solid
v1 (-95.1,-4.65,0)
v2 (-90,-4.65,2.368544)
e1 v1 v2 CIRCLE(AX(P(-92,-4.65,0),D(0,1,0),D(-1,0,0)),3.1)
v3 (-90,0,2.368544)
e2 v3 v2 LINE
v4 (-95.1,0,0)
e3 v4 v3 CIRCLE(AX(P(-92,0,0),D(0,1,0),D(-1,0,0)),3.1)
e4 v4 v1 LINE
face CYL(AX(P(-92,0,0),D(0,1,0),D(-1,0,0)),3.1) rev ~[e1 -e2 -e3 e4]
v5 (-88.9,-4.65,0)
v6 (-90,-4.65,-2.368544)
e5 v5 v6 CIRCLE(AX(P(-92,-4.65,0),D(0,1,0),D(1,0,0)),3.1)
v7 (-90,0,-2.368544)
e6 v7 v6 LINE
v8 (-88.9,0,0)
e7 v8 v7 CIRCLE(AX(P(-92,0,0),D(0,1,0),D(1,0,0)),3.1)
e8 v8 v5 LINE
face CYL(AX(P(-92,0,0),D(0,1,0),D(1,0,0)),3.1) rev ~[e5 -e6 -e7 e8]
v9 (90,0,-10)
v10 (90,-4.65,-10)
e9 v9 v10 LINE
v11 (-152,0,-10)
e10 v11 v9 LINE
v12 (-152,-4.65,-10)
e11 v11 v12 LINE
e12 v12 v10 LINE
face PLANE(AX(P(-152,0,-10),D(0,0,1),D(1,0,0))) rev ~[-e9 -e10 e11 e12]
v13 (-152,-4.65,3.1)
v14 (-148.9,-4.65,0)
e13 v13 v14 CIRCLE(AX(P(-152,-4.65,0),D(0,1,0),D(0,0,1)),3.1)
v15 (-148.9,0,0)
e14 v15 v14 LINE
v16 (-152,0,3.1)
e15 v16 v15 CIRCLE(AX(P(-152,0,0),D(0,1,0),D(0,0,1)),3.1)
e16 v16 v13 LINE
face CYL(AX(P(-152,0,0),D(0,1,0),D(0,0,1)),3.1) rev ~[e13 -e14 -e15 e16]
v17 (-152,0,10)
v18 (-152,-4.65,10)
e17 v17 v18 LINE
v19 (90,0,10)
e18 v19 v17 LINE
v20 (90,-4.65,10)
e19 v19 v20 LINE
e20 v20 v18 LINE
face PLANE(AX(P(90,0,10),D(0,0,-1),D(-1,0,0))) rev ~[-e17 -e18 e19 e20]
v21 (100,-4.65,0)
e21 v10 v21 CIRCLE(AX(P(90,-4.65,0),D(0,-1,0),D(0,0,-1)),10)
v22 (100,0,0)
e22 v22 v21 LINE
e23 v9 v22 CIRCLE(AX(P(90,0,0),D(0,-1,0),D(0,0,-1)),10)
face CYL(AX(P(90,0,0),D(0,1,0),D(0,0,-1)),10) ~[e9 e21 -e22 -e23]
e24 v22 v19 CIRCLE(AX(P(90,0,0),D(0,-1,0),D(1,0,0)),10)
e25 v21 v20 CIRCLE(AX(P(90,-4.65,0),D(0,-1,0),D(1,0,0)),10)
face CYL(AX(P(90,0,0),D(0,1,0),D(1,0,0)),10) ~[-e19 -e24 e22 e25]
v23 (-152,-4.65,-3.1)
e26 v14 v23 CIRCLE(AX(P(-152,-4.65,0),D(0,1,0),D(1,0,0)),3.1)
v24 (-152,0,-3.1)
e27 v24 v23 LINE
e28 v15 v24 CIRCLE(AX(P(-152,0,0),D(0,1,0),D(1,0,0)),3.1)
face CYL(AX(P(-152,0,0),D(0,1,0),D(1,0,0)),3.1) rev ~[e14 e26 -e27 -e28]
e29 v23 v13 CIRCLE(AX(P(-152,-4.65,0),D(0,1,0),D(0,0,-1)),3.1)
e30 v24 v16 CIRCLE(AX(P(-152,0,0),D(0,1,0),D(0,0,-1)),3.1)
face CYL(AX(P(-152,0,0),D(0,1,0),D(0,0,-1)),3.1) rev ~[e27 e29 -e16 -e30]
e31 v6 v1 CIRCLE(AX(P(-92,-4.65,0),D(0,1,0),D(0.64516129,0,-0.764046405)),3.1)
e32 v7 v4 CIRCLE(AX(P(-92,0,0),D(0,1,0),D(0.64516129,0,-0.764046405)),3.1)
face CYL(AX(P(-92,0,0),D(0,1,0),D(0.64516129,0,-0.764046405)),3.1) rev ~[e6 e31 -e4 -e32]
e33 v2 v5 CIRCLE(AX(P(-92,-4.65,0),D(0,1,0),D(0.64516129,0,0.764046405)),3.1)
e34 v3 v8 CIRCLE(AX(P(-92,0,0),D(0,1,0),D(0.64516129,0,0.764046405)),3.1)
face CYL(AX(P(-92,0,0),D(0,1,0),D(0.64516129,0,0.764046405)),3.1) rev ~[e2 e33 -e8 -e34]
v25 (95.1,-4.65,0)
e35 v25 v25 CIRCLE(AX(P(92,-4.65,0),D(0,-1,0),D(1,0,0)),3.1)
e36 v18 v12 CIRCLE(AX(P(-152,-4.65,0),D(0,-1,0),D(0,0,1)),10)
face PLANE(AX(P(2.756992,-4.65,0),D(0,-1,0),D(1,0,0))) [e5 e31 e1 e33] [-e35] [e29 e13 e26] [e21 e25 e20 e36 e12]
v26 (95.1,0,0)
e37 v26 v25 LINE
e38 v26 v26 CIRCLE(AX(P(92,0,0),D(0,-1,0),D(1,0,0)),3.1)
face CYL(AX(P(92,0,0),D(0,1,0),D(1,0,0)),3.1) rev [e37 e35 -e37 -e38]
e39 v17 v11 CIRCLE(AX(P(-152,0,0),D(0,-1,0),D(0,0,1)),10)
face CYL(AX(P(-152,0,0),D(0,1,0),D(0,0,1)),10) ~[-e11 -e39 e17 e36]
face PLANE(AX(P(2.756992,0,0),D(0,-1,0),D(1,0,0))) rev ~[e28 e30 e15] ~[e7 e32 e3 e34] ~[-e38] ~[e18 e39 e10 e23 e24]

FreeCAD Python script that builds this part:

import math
import FreeCAD as App
import Part
import Sketcher
Q = App.Units.Quantity

doc = App.newDocument("Part")
body = doc.addObject("PartDesign::Body", "Body")

# Sketch on XZ plane
sketch1 = body.newObject("Sketcher::SketchObject", "Sketch")
sketch1.AttachmentSupport = (doc.getObject("XZ_Plane"), [""])
sketch1.MapMode = "FlatFace"
sketch1.addGeometry([
    Part.ArcOfCircle(Part.Circle(App.Vector(90, 0, 0), App.Vector(0, 0, 1), 10), math.radians(0), math.radians(90)),  # 0
    Part.LineSegment(App.Vector(90, 10, 0), App.Vector(-152, 10, 0)),  # 1
    Part.ArcOfCircle(Part.Circle(App.Vector(-152, 0, 0), App.Vector(0, 0, 1), 10), math.radians(90), math.radians(270)),  # 2
    Part.LineSegment(App.Vector(-152, -10, 0), App.Vector(90, -10, 0)),  # 3
    Part.ArcOfCircle(Part.Circle(App.Vector(90, 0, 0), App.Vector(0, 0, 1), 10), math.radians(-90), math.radians(0)),  # 4
    Part.ArcOfCircle(Part.Circle(App.Vector(-152, 0, 0), App.Vector(0, 0, 1), 3.1), math.radians(0), math.radians(90)),  # 5
    Part.ArcOfCircle(Part.Circle(App.Vector(-152, 0, 0), App.Vector(0, 0, 1), 3.1), math.radians(-90), math.radians(0)),  # 6
    Part.ArcOfCircle(Part.Circle(App.Vector(-152, 0, 0), App.Vector(0, 0, 1), 3.1), math.radians(90), math.radians(270)),  # 7
    Part.ArcOfCircle(Part.Circle(App.Vector(-92, 0, 0), App.Vector(0, 0, 1), 3.1), math.radians(50), math.radians(180)),  # 8
    Part.ArcOfCircle(Part.Circle(App.Vector(-92, 0, 0), App.Vector(0, 0, 1), 3.1), math.radians(0), math.radians(50)),  # 9
    Part.ArcOfCircle(Part.Circle(App.Vector(-92, 0, 0), App.Vector(0, 0, 1), 3.1), math.radians(-50), math.radians(0)),  # 10
    Part.ArcOfCircle(Part.Circle(App.Vector(-92, 0, 0), App.Vector(0, 0, 1), 3.1), math.radians(180), math.radians(310)),  # 11
    Part.Circle(App.Vector(92, 0, 0), App.Vector(0, 0, 1), 3.1),  # 12
], False)
sketch1.addConstraint([
    Sketcher.Constraint("Tangent", 0, 2, 1, 1),
    Sketcher.Constraint("Tangent", 1, 2, 2, 1),
    Sketcher.Constraint("Tangent", 2, 2, 3, 1),
    Sketcher.Constraint("Tangent", 3, 2, 4, 1),
    Sketcher.Constraint("Tangent", 4, 2, 0, 1),
    Sketcher.Constraint("Tangent", 5, 1, 6, 2),
    Sketcher.Constraint("Tangent", 6, 1, 7, 2),
    Sketcher.Constraint("Tangent", 7, 1, 5, 2),
    Sketcher.Constraint("Tangent", 8, 1, 9, 2),
    Sketcher.Constraint("Tangent", 9, 1, 10, 2),
    Sketcher.Constraint("Tangent", 10, 1, 11, 2),
    Sketcher.Constraint("Tangent", 11, 1, 8, 2),
    Sketcher.Constraint("Horizontal", 1),
    Sketcher.Constraint("Horizontal", 3),
    Sketcher.Constraint("Coincident", 5, 3, 2, 3),
    Sketcher.Constraint("Equal", 0, 2),
    Sketcher.Constraint("Equal", 7, 8),
    Sketcher.Constraint("Equal", 8, 9),
    Sketcher.Constraint("Equal", 11, 12),
    Sketcher.Constraint("Symmetric", 8, 3, 12, 3, -1, 1),
    Sketcher.Constraint("Symmetric", 6, 1, 7, 1, -1),
    Sketcher.Constraint("Symmetric", 8, 1, 10, 1, -1),
    Sketcher.Constraint("PointOnObject", 4, 2, -1),
    Sketcher.Constraint("PointOnObject", 5, 1, -1),
    Sketcher.Constraint("PointOnObject", 9, 1, -1),
    Sketcher.Constraint("PointOnObject", 11, 1, -1),
    Sketcher.Constraint("Vertical", 2, 2, 6, 1),
    Sketcher.Constraint("Radius", 0, Q("10 mm")),
    Sketcher.Constraint("Diameter", 12, Q("6.2 mm")),
    Sketcher.Constraint("DistanceX", 1, 2, 1, 1, Q("242 mm")),
    Sketcher.Constraint("DistanceX", -1, 1, 0, 3, Q("90 mm")),
    Sketcher.Constraint("DistanceX", 8, 3, -1, 1, Q("92 mm")),
    Sketcher.Constraint("DistanceX", 8, 1, -1, 1, Q("90 mm")),
])
pad1 = body.newObject("PartDesign::Pad", "Pad")
pad1.Profile = sketch1
pad1.Length = 4.65

doc.recompute()
